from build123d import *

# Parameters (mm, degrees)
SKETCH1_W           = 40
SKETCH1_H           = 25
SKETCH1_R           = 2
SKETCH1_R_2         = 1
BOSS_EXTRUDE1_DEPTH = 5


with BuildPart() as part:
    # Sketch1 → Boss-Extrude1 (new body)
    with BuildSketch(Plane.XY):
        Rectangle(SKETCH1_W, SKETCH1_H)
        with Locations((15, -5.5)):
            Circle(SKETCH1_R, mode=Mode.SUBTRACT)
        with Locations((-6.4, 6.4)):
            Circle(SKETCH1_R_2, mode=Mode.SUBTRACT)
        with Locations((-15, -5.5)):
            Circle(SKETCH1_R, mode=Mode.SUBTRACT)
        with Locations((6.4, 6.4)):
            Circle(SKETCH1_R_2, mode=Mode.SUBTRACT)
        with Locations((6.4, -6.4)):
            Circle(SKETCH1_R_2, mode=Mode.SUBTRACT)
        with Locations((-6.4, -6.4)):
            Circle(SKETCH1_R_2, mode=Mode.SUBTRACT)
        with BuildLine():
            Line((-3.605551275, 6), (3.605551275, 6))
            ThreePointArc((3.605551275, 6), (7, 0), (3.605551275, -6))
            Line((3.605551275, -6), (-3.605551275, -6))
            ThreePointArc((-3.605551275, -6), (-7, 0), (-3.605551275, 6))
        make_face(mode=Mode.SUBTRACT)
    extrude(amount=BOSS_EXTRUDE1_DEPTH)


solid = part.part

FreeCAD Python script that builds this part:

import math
import FreeCAD as App
import Part
import Sketcher

doc = App.newDocument("Part")
body = doc.addObject("PartDesign::Body", "Body")

sketch1 = doc.addObject("Sketcher::SketchObject", "Sketch")
body.addObject(sketch1)
sketch1.AttachmentSupport = (doc.XY_Plane, [""])
sketch1.MapMode = "FlatFace"
sketch1.addGeometry(Part.LineSegment(App.Vector(-20, 12.5, 0), App.Vector(-20, -12.5, 0)), False)
sketch1.addGeometry(Part.LineSegment(App.Vector(-20, -12.5, 0), App.Vector(20, -12.5, 0)), False)
sketch1.addGeometry(Part.LineSegment(App.Vector(20, -12.5, 0), App.Vector(20, 12.5, 0)), False)
sketch1.addGeometry(Part.LineSegment(App.Vector(20, 12.5, 0), App.Vector(-20, 12.5, 0)), False)
sketch1.addGeometry(Part.Circle(App.Vector(-15, -5.5, 0), App.Vector(0, 0, 1), 2), False)
sketch1.addGeometry(Part.Circle(App.Vector(-6.4, -6.4, 0), App.Vector(0, 0, 1), 1), False)
sketch1.addGeometry(Part.Circle(App.Vector(6.4, -6.4, 0), App.Vector(0, 0, 1), 1), False)
sketch1.addGeometry(Part.Circle(App.Vector(15, -5.5, 0), App.Vector(0, 0, 1), 2), False)
sketch1.addGeometry(Part.Circle(App.Vector(-6.4, 6.4, 0), App.Vector(0, 0, 1), 1), False)
sketch1.addGeometry(Part.ArcOfCircle(Part.Circle(App.Vector(0, 0, 0), App.Vector(0, 0, 1), 7), math.radians(121), math.radians(239)), False)
sketch1.addGeometry(Part.LineSegment(App.Vector(-3.6, 6, 0), App.Vector(3.6, 6, 0)), False)
sketch1.addGeometry(Part.ArcOfCircle(Part.Circle(App.Vector(0, 0, 0), App.Vector(0, 0, 1), 7), math.radians(-59), math.radians(59)), False)
sketch1.addGeometry(Part.LineSegment(App.Vector(3.6, -6, 0), App.Vector(-3.6, -6, 0)), False)
sketch1.addGeometry(Part.Circle(App.Vector(6.4, 6.4, 0), App.Vector(0, 0, 1), 1), False)
sketch1.addConstraint(Sketcher.Constraint("Coincident", 0, 2, 1, 1))
sketch1.addConstraint(Sketcher.Constraint("Coincident", 1, 2, 2, 1))
sketch1.addConstraint(Sketcher.Constraint("Coincident", 2, 2, 3, 1))
sketch1.addConstraint(Sketcher.Constraint("Coincident", 3, 2, 0, 1))
sketch1.addConstraint(Sketcher.Constraint("Coincident", 9, 1, 10, 1))
sketch1.addConstraint(Sketcher.Constraint("Coincident", 10, 2, 11, 2))
sketch1.addConstraint(Sketcher.Constraint("Coincident", 11, 1, 12, 1))
sketch1.addConstraint(Sketcher.Constraint("Coincident", 12, 2, 9, 2))
sketch1.addConstraint(Sketcher.Constraint("Vertical", 0))
sketch1.addConstraint(Sketcher.Constraint("Horizontal", 1))
sketch1.addConstraint(Sketcher.Constraint("Vertical", 2))
sketch1.addConstraint(Sketcher.Constraint("Horizontal", 3))
sketch1.addConstraint(Sketcher.Constraint("Horizontal", 10))
sketch1.addConstraint(Sketcher.Constraint("Horizontal", 12))
sketch1.addConstraint(Sketcher.Constraint("Coincident", 9, 3, -1, 1))
sketch1.addConstraint(Sketcher.Constraint("Coincident", 11, 3, -1, 1))
sketch1.addConstraint(Sketcher.Constraint("Equal", 5, 6))
sketch1.addConstraint(Sketcher.Constraint("Equal", 4, 7))
sketch1.addConstraint(Sketcher.Constraint("Equal", 6, 8))
sketch1.addConstraint(Sketcher.Constraint("Equal", 9, 11))
sketch1.addConstraint(Sketcher.Constraint("Equal", 8, 13))
sketch1.addConstraint(Sketcher.Constraint("Symmetric", 6, 3, 8, 3, -1, 1))
sketch1.addConstraint(Sketcher.Constraint("Symmetric", 5, 3, 13, 3, -1, 1))
sketch1.addConstraint(Sketcher.Constraint("Symmetric", 0, 2, 2, 2, -1, 1))
sketch1.addConstraint(Sketcher.Constraint("Symmetric", 5, 3, 6, 3, -2))
sketch1.addConstraint(Sketcher.Constraint("Symmetric", 4, 3, 7, 3, -2))
sketch1.addConstraint(Sketcher.Constraint("Vertical", 10, 2, 11, 1))
sketch1.addConstraint(Sketcher.Constraint("Diameter", 4, 4.0))
sketch1.addConstraint(Sketcher.Constraint("Diameter", 5, 2.0))
sketch1.addConstraint(Sketcher.Constraint("Radius", 9, 7.0))
sketch1.addConstraint(Sketcher.Constraint("DistanceX", 1, 1, 1, 2, 40.0))
sketch1.addConstraint(Sketcher.Constraint("DistanceY", 0, 2, 0, 1, 25.0))
sketch1.addConstraint(Sketcher.Constraint("DistanceX", 4, 3, -1, 1, 15.0))
sketch1.addConstraint(Sketcher.Constraint("DistanceY", -1, 1, 9, 1, 6.0))
sketch1.addConstraint(Sketcher.Constraint("DistanceY", 0, 2, 4, 3, 7.0))
sketch1.addConstraint(Sketcher.Constraint("DistanceX", 5, 3, -1, 1, 6.4))
sketch1.addConstraint(Sketcher.Constraint("DistanceY", 5, 3, -1, 1, 6.4))
pad1 = doc.addObject("PartDesign::Pad", "Pad")
body.addObject(pad1)
pad1.Profile = sketch1
pad1.Length = 5

doc.recompute()
